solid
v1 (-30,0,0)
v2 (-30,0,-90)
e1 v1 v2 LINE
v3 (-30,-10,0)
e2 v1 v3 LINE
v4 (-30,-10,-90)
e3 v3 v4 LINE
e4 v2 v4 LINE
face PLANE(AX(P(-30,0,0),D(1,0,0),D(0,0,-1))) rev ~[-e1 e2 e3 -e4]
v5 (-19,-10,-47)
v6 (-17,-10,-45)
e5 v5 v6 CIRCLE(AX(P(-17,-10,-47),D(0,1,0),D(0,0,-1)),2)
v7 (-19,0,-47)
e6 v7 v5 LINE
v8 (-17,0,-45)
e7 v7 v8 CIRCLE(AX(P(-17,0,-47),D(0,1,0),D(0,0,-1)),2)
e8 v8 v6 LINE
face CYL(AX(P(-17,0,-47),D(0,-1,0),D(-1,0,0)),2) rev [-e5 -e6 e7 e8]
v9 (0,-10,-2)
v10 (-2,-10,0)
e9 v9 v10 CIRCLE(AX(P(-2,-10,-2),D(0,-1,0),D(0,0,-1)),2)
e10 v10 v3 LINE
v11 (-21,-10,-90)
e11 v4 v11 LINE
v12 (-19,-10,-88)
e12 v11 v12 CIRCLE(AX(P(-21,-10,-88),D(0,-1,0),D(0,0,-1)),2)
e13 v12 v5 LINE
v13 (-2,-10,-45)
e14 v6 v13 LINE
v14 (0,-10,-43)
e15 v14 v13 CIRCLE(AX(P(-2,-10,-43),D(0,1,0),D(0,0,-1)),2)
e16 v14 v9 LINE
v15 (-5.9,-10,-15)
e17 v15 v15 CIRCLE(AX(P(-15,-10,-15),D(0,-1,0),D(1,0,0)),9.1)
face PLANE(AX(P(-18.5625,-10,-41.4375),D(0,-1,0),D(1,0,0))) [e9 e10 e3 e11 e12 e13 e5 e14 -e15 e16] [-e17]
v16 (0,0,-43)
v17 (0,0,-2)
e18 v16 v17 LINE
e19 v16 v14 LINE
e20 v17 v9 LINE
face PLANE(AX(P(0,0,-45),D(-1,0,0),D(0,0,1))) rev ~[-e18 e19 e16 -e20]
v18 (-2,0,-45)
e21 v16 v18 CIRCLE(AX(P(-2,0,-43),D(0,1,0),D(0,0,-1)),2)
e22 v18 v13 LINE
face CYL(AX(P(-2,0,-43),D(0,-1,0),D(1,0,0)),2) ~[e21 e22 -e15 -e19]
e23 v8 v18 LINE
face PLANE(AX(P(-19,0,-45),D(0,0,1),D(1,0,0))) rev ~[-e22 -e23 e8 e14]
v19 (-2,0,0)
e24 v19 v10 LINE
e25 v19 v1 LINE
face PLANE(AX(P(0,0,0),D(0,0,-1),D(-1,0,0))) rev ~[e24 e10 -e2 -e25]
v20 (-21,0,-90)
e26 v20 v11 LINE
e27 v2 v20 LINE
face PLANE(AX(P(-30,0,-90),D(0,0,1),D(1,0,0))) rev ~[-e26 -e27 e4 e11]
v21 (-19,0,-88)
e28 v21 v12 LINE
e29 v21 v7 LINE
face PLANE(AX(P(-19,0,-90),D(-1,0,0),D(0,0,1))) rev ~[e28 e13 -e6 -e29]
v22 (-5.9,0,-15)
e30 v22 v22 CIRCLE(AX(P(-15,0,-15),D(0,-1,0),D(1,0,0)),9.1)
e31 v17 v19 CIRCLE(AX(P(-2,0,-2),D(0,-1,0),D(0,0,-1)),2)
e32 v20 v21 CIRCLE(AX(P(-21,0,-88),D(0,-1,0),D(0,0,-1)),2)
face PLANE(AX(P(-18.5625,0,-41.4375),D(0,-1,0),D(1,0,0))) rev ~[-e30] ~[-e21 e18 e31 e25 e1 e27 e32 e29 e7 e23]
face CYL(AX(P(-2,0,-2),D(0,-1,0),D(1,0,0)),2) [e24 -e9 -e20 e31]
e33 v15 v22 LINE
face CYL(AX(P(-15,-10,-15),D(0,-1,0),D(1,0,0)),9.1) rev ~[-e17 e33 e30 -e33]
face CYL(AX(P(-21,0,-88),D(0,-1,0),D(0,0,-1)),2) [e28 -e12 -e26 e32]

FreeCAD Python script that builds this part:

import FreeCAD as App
import Part
import Sketcher

V = App.Vector


def edges_at(feature, points):
    """Names of the edges that pass closest to the given points."""
    edges = feature.Shape.Edges
    near = lambda p: min(range(len(edges)), key=lambda i: edges[i].distToShape(Part.Vertex(*p))[0])
    return sorted({f"Edge{near(p) + 1}" for p in points})

doc = App.newDocument("Part")
body = doc.addObject("PartDesign::Body", "Body")

sketch1 = doc.addObject("Sketcher::SketchObject", "Sketch")
body.addObject(sketch1)
sketch1.AttachmentSupport = (doc.XZ_Plane, [""])
sketch1.MapMode = "FlatFace"
sketch1.addGeometry([
    Part.LineSegment(V(0, -45, 0), V(0, 0, 0)),
    Part.LineSegment(V(0, 0, 0), V(-30, 0, 0)),
    Part.LineSegment(V(-30, 0, 0), V(-30, -90, 0)),
    Part.LineSegment(V(-30, -90, 0), V(-19, -90, 0)),
    Part.LineSegment(V(-19, -90, 0), V(-19, -45, 0)),
    Part.LineSegment(V(-19, -45, 0), V(0, -45, 0)),
], False)
sketch1.addConstraint([
    Sketcher.Constraint("Coincident", 0, 2, 1, 1),
    Sketcher.Constraint("Coincident", 1, 2, 2, 1),
    Sketcher.Constraint("Coincident", 2, 2, 3, 1),
    Sketcher.Constraint("Coincident", 3, 2, 4, 1),
    Sketcher.Constraint("Coincident", 4, 2, 5, 1),
    Sketcher.Constraint("Coincident", 5, 2, 0, 1),
    Sketcher.Constraint("Vertical", 0),
    Sketcher.Constraint("Horizontal", 1),
    Sketcher.Constraint("Vertical", 2),
    Sketcher.Constraint("Horizontal", 3),
    Sketcher.Constraint("Vertical", 4),
    Sketcher.Constraint("Horizontal", 5),
    Sketcher.Constraint("Coincident", 0, 2, -1, 1),
    Sketcher.Constraint("Equal", 0, 4),
    Sketcher.Constraint("DistanceX", 1, 2, 1, 1, 30.0),
    Sketcher.Constraint("DistanceX", 3, 1, 3, 2, 11.0),
    Sketcher.Constraint("DistanceY", 0, 1, 0, 2, 45.0),
])
pad1 = doc.addObject("PartDesign::Pad", "Pad")
body.addObject(pad1)
pad1.Profile = sketch1
pad1.Length = 10
doc.recompute()

fillet = doc.addObject("PartDesign::Fillet", "Fillet")
body.addObject(fillet)
fillet.Base = (pad1, edges_at(pad1, [
    (-19, -5, -90),
    (0, -5, -45),
    (-19, -5, -45),
    (0, -5, 0),
]))
fillet.Radius = 2

sketch2 = doc.addObject("Sketcher::SketchObject", "Sketch001")
body.addObject(sketch2)
sketch2.AttachmentSupport = (doc.XZ_Plane, [""])
sketch2.MapMode = "FlatFace"
sketch2.AttachmentOffset = App.Placement(V(0, 0, 10), App.Rotation())
sketch2.addGeometry(Part.Circle(V(-15, -15, 0), V(0, 0, 1), 9), False)
sketch2.addConstraint([
    Sketcher.Constraint("Diameter", 0, 18.2),
    Sketcher.Constraint("DistanceX", 0, 3, -1, 1, 15.0),
    Sketcher.Constraint("DistanceY", 0, 3, -1, 1, 15.0),
])
pocket1 = doc.addObject("PartDesign::Pocket", "Pocket")
body.addObject(pocket1)
pocket1.Profile = sketch2
pocket1.Length = 25

doc.recompute()
